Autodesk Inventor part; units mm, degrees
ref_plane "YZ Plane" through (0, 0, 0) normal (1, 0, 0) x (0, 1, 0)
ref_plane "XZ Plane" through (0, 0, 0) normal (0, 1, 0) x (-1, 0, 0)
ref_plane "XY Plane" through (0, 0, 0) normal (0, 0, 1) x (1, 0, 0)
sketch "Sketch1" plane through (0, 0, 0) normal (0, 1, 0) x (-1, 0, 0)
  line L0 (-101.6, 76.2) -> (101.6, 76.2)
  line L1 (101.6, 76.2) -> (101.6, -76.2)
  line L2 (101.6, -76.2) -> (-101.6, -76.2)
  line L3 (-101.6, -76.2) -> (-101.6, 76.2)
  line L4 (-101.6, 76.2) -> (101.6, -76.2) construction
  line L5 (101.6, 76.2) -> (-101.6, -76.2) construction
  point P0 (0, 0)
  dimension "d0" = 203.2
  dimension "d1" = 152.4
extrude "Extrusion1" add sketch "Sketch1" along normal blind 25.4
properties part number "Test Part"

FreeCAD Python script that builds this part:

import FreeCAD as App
import Part
import Sketcher
Q = App.Units.Quantity


def add_polygon(sketch, points):
    """Adds a closed chain of lines whose ends are joined by coincident constraints."""
    first, n = sketch.GeometryCount, len(points)
    for a, b in zip(points, points[1:] + points[:1]):
        sketch.addGeometry(Part.LineSegment(App.Vector(*a, 0), App.Vector(*b, 0)), False)
    for i in range(n):
        sketch.addConstraint(Sketcher.Constraint("Coincident", first + i, 2, first + (i + 1) % n, 1))

doc = App.newDocument("Part")
body = doc.addObject("PartDesign::Body", "Body")

sketch1 = body.newObject("Sketcher::SketchObject", "Sketch")
sketch1.AttachmentSupport = (doc.getObject("XZ_Plane"), [""])
sketch1.MapMode = "FlatFace"
add_polygon(sketch1, [(-101.6, 76.2), (101.6, 76.2), (101.6, -76.2), (-101.6, -76.2)])
sketch1.addConstraint([
    Sketcher.Constraint("Horizontal", 0),
    Sketcher.Constraint("Vertical", 1),
    Sketcher.Constraint("Horizontal", 2),
    Sketcher.Constraint("Vertical", 3),
    Sketcher.Constraint("Symmetric", 0, 2, 2, 2, -1, 1),
    Sketcher.Constraint("DistanceX", 0, 1, 0, 2, Q("8 in")),
    Sketcher.Constraint("DistanceY", 1, 2, 1, 1, Q("6 in")),
])
pad1 = body.newObject("PartDesign::Pad", "Pad")
pad1.Profile = sketch1
pad1.Length = Q("1 in")
pad1.Reversed = True

doc.recompute()
